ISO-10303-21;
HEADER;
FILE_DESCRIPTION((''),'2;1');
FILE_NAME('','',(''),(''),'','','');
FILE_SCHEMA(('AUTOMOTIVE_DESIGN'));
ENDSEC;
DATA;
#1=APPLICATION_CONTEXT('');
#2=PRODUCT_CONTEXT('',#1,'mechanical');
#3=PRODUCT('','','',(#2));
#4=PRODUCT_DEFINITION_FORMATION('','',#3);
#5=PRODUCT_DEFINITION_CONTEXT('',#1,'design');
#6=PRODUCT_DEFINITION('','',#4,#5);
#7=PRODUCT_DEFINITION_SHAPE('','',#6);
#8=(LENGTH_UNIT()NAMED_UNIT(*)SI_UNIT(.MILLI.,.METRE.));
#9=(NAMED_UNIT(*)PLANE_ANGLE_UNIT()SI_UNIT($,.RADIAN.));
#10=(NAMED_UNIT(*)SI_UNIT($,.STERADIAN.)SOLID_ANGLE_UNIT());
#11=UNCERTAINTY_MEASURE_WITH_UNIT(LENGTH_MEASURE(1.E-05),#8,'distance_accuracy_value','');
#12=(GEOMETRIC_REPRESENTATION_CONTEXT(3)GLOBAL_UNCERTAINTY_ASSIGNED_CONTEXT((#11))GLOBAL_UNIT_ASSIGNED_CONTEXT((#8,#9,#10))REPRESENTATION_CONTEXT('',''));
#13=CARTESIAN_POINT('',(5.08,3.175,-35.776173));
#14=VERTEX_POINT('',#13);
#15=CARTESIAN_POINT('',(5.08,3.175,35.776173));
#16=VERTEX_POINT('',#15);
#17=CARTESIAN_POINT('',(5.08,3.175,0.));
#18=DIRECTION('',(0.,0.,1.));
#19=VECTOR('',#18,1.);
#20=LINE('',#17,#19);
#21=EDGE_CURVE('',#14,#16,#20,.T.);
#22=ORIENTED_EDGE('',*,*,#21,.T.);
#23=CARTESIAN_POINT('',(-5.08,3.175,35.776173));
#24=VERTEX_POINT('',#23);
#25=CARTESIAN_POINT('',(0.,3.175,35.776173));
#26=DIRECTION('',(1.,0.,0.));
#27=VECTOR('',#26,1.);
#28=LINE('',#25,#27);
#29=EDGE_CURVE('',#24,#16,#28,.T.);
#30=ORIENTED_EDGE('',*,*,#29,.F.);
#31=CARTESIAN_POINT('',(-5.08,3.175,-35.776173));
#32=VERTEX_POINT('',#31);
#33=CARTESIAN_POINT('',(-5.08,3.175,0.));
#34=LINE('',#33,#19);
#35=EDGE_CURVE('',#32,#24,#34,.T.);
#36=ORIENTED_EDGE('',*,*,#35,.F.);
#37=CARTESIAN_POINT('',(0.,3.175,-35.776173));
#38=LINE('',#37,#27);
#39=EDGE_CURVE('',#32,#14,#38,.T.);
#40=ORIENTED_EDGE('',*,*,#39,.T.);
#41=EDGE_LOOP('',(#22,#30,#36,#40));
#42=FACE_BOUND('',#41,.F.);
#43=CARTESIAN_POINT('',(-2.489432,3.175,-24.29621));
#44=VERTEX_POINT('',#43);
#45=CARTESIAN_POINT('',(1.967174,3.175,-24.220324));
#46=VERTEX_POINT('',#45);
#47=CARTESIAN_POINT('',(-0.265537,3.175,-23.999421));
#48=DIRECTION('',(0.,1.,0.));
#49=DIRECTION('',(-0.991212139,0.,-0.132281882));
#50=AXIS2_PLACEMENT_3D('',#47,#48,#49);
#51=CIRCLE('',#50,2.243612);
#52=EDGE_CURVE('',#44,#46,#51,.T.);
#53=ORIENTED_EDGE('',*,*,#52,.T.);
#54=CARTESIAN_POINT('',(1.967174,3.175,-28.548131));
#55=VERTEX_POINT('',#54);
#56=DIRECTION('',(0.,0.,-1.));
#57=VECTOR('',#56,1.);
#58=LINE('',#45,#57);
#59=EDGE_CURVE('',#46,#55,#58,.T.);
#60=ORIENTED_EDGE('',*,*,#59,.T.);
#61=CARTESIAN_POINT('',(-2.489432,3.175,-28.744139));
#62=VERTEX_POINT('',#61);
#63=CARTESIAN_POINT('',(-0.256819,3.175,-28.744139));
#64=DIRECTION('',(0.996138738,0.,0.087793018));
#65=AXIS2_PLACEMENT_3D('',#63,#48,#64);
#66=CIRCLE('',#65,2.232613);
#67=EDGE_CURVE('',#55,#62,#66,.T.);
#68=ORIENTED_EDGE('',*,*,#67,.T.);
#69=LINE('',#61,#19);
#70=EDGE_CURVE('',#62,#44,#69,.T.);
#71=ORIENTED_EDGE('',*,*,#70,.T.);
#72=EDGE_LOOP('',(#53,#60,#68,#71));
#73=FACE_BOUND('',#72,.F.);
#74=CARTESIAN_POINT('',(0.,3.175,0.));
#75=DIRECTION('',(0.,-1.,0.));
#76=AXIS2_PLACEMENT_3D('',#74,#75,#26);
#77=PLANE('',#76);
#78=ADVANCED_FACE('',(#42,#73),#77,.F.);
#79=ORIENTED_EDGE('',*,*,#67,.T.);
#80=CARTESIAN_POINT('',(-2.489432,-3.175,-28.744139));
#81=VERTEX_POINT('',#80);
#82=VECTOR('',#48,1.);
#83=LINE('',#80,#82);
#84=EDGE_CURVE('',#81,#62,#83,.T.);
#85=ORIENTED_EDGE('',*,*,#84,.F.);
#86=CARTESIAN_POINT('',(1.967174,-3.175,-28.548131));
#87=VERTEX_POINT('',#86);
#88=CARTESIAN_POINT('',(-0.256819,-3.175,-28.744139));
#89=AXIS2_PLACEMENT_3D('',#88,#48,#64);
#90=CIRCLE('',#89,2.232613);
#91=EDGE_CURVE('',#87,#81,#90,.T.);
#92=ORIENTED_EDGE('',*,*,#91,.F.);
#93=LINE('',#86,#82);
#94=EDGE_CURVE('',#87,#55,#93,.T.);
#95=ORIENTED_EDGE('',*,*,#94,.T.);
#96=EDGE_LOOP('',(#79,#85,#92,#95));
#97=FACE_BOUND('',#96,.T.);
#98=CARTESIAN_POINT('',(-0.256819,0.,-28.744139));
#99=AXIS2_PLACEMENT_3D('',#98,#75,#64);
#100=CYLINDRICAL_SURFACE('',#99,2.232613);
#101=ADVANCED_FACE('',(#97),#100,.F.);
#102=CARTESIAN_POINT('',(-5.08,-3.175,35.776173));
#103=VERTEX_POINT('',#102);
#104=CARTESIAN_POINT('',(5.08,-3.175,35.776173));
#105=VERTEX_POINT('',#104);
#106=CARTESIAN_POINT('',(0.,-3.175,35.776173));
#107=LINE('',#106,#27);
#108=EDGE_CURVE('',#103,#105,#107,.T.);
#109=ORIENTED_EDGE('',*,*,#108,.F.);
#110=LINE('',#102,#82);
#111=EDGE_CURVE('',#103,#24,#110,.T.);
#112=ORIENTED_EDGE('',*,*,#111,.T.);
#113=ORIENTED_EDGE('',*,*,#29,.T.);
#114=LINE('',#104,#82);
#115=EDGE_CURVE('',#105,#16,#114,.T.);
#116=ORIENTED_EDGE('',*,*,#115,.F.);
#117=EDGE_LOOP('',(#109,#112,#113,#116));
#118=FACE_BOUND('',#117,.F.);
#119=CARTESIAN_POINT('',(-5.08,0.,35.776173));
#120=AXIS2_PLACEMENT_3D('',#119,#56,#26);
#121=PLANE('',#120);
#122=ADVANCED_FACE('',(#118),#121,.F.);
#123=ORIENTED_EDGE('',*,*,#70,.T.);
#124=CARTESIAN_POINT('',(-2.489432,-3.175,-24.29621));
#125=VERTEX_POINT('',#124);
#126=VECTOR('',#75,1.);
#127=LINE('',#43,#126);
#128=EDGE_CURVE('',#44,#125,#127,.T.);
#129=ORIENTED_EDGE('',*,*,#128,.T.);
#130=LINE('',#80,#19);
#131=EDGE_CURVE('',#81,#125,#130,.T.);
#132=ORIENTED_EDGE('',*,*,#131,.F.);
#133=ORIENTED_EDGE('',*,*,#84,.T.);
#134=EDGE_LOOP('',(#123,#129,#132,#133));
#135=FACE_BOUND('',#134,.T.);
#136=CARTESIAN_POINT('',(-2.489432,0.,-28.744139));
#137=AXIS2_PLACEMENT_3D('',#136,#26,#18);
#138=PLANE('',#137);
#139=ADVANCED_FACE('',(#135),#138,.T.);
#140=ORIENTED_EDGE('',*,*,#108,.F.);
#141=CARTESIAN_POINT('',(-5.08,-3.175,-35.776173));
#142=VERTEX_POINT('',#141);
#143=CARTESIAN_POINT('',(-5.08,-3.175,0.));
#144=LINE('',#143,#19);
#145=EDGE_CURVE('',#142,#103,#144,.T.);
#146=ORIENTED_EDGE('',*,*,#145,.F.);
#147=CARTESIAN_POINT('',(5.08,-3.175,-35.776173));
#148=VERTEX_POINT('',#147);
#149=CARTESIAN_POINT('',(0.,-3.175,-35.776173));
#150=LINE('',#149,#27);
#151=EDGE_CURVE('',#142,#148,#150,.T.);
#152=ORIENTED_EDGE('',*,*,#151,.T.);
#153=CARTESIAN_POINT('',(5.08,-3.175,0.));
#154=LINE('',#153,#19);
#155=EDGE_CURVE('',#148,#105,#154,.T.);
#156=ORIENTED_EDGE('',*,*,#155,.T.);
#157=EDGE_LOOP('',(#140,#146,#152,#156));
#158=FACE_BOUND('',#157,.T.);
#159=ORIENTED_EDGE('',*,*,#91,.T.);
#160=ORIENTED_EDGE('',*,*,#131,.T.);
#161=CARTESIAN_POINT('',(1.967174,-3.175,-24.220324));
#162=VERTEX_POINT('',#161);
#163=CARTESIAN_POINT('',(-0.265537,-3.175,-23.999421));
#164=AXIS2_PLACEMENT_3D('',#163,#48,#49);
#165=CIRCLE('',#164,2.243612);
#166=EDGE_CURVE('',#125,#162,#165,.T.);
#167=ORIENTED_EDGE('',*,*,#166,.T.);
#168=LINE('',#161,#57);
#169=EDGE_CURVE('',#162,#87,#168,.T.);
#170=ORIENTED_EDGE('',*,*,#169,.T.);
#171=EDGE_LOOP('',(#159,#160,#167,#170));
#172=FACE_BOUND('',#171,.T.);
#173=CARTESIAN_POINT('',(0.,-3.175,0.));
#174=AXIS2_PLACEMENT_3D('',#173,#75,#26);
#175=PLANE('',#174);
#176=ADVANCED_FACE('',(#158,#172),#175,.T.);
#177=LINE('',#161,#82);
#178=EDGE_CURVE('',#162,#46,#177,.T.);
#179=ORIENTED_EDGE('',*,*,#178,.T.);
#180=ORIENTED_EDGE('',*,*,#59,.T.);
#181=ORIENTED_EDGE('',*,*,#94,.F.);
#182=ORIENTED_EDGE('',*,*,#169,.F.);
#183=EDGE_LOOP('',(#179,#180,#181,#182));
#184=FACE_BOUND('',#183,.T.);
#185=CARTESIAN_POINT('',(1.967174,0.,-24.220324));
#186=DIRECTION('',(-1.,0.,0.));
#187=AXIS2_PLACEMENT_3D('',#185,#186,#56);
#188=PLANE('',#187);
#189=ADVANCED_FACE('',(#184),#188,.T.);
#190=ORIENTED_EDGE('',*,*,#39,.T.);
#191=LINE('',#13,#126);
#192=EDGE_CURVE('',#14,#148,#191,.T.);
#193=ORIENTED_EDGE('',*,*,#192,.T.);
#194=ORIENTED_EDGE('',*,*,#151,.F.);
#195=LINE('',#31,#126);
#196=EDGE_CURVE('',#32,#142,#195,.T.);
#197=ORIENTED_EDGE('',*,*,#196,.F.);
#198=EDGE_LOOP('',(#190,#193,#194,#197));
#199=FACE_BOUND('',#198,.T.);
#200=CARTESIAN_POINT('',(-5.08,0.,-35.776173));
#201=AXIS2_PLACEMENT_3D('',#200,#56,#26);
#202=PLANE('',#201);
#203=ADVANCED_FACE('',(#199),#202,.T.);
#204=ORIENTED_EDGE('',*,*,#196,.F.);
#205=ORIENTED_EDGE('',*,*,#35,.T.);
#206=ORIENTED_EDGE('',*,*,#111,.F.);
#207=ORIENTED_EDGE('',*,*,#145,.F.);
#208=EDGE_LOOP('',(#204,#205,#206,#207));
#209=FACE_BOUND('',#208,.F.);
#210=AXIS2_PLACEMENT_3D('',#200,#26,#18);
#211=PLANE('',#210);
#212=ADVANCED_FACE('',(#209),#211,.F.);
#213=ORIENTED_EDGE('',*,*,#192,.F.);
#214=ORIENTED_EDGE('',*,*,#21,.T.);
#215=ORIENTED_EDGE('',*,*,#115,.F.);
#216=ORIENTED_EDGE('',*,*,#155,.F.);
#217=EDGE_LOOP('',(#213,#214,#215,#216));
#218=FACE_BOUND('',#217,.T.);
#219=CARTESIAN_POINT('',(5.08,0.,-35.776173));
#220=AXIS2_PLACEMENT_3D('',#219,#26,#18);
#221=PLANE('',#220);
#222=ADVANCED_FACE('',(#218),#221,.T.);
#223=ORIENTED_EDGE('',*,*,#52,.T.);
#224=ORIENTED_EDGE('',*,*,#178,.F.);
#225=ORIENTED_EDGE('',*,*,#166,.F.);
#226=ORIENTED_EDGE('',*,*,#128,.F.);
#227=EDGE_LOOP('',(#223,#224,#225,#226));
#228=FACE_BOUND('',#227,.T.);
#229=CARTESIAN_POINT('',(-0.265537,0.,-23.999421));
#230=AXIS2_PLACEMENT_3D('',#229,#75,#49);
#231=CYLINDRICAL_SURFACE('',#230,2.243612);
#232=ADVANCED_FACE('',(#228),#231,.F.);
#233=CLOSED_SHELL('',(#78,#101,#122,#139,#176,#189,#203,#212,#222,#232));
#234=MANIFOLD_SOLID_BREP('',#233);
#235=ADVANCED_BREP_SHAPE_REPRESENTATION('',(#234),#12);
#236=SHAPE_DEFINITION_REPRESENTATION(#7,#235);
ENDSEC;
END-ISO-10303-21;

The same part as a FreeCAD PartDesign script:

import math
import FreeCAD as App
import Part
import Sketcher
Q = App.Units.Quantity


def add_polygon(sketch, points):
    """Adds a closed chain of lines whose ends are joined by coincident constraints."""
    first, n = sketch.GeometryCount, len(points)
    for a, b in zip(points, points[1:] + points[:1]):
        sketch.addGeometry(Part.LineSegment(App.Vector(*a, 0), App.Vector(*b, 0)), False)
    for i in range(n):
        sketch.addConstraint(Sketcher.Constraint("Coincident", first + i, 2, first + (i + 1) % n, 1))

doc = App.newDocument("Part")
body = doc.addObject("PartDesign::Body", "Body")

# Sketch on XZ plane
sketch1 = body.newObject("Sketcher::SketchObject", "Sketch")
sketch1.AttachmentSupport = (doc.getObject("XZ_Plane"), [""])
sketch1.MapMode = "FlatFace"
add_polygon(sketch1, [(-5.08, 35.776173), (-5.08, -35.776173), (5.08, -35.776173), (5.08, 35.776173)])  # lines 0-3
sketch1.addGeometry(Part.LineSegment(App.Vector(-2.489432, -28.744139, 0), App.Vector(-2.489432, -24.29621, 0)), False)  # 4
sketch1.addGeometry(Part.ArcOfCircle(Part.Circle(App.Vector(-0.265537, -23.999421, 0), App.Vector(0, 0, 1), 2.243612), math.radians(-5.650425), math.radians(187.601474)), False)  # 5
sketch1.addGeometry(Part.LineSegment(App.Vector(1.967174, -24.220324, 0), App.Vector(1.967174, -28.548131, 0)), False)  # 6
sketch1.addGeometry(Part.ArcOfCircle(Part.Circle(App.Vector(-0.256819, -28.744139, 0), App.Vector(0, 0, 1), 2.232613), math.radians(-179.999997), math.radians(5.036654)), False)  # 7
sketch1.addConstraint(Sketcher.Constraint("Coincident", 4, 2, 5, 2))
sketch1.addConstraint(Sketcher.Constraint("Coincident", 5, 1, 6, 1))
sketch1.addConstraint(Sketcher.Constraint("Coincident", 6, 2, 7, 2))
sketch1.addConstraint(Sketcher.Constraint("Tangent", 7, 1, 4, 1))
sketch1.addConstraint(Sketcher.Constraint("Vertical", 0))
sketch1.addConstraint(Sketcher.Constraint("Horizontal", 1))
sketch1.addConstraint(Sketcher.Constraint("Vertical", 2))
sketch1.addConstraint(Sketcher.Constraint("Horizontal", 3))
sketch1.addConstraint(Sketcher.Constraint("Vertical", 4))
sketch1.addConstraint(Sketcher.Constraint("Vertical", 6))
sketch1.addConstraint(Sketcher.Constraint("Symmetric", 0, 2, 2, 2, -1, 1))
sketch1.addConstraint(Sketcher.Constraint("DistanceX", 1, 1, 1, 2, Q("0.4 in")))
sketch1.addConstraint(Sketcher.Constraint("Radius", 5, Q("2.243612 mm")))
sketch1.addConstraint(Sketcher.Constraint("Radius", 7, Q("2.232613 mm")))
sketch1.addConstraint(Sketcher.Constraint("DistanceY", 7, 3, 5, 3, Q("0.1867999 in")))
sketch1.addConstraint(Sketcher.Constraint("DistanceY", 4, 1, 4, 2, Q("4.447929 mm")))
sketch1.addConstraint(Sketcher.Constraint("DistanceY", 0, 2, 0, 1, Q("71.552346 mm")))
sketch1.addConstraint(Sketcher.Constraint("DistanceY", 6, 2, 6, 1, Q("4.327807 mm")))
sketch1.addConstraint(Sketcher.Constraint("DistanceY", 5, 3, -1, 1, Q("23.999421 mm")))
sketch1.addConstraint(Sketcher.Constraint("DistanceX", 7, 3, -1, 1, Q("0.256819 mm")))
pad1 = body.newObject("PartDesign::Pad", "Pad")
pad1.Profile = sketch1
pad1.Length = Q("0.25 in")
pad1.Midplane = True

doc.recompute()
